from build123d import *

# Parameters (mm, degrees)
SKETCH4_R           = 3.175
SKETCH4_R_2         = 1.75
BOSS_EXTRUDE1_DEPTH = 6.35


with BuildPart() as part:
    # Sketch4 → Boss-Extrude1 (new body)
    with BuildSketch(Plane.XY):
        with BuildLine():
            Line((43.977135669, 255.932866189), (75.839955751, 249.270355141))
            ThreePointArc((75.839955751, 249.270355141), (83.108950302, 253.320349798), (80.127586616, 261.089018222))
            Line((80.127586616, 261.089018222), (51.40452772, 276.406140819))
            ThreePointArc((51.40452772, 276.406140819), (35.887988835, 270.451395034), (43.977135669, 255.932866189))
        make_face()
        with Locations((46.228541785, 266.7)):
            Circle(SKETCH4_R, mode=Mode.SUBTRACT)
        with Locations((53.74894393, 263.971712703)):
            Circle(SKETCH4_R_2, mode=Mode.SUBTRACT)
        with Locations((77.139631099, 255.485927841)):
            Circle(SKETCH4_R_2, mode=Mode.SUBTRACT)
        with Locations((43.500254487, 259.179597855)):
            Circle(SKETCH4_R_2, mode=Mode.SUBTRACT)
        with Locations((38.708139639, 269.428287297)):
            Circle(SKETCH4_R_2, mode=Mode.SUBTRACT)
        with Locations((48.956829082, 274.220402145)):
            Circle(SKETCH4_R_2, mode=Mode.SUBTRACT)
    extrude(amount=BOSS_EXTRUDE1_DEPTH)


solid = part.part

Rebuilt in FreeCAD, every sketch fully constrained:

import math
import FreeCAD as App
import Part
import Sketcher
Q = App.Units.Quantity

doc = App.newDocument("Part")
body = doc.addObject("PartDesign::Body", "Body")

# Sketch on XY plane
sketch1 = body.newObject("Sketcher::SketchObject", "Sketch")
sketch1.AttachmentSupport = (doc.getObject("XY_Plane"), [""])
sketch1.MapMode = "FlatFace"
sketch1.addGeometry([
    Part.LineSegment(App.Vector(43.977136, 255.932866, 0), App.Vector(75.839956, 249.270355, 0)),  # 0
    Part.ArcOfCircle(Part.Circle(App.Vector(77.139631, 255.485928, 0), App.Vector(0, 0, 1), 6.35), math.radians(-101.810374), math.radians(61.930374)),  # 1
    Part.LineSegment(App.Vector(80.127587, 261.089018, 0), App.Vector(51.404528, 276.406141, 0)),  # 2
    Part.ArcOfCircle(Part.Circle(App.Vector(46.228542, 266.7, 0), App.Vector(0, 0, 1), 11), math.radians(61.930374), math.radians(258.189626)),  # 3
    Part.Circle(App.Vector(43.500254, 259.179598, 0), App.Vector(0, 0, 1), 1.75),  # 4
    Part.Circle(App.Vector(53.748944, 263.971713, 0), App.Vector(0, 0, 1), 1.75),  # 5
    Part.Circle(App.Vector(77.139631, 255.485928, 0), App.Vector(0, 0, 1), 1.75),  # 6
    Part.Circle(App.Vector(46.228542, 266.7, 0), App.Vector(0, 0, 1), 3.175),  # 7
    Part.Circle(App.Vector(38.70814, 269.428287, 0), App.Vector(0, 0, 1), 1.75),  # 8
    Part.Circle(App.Vector(48.956829, 274.220402, 0), App.Vector(0, 0, 1), 1.75),  # 9
], False)
sketch1.addConstraint([
    Sketcher.Constraint("Tangent", 0, 2, 1, 1),
    Sketcher.Constraint("Tangent", 1, 2, 2, 1),
    Sketcher.Constraint("Tangent", 2, 2, 3, 1),
    Sketcher.Constraint("Tangent", 3, 2, 0, 1),
    Sketcher.Constraint("Coincident", 6, 3, 1, 3),
    Sketcher.Constraint("Coincident", 7, 3, 3, 3),
    Sketcher.Constraint("Equal", 4, 5),
    Sketcher.Constraint("Equal", 5, 6),
    Sketcher.Constraint("Equal", 6, 8),
    Sketcher.Constraint("Equal", 8, 9),
    Sketcher.Constraint("Radius", 3, Q("11 mm")),
    Sketcher.Constraint("Diameter", 4, Q("3.5 mm")),
    Sketcher.Constraint("Diameter", 7, Q("6.35 mm")),
    Sketcher.Constraint("Radius", 1, Q("6.35 mm")),
    Sketcher.Constraint("DistanceY", -1, 1, 3, 3, Q("266.7 mm")),
    Sketcher.Constraint("DistanceX", 4, 3, 0, 2, Q("32.339701 mm")),
    Sketcher.Constraint("DistanceX", 9, 3, 2, 2, Q("2.447699 mm")),
    Sketcher.Constraint("DistanceX", -1, 1, 1, 3, Q("77.139631 mm")),
    Sketcher.Constraint("DistanceX", -1, 1, 3, 3, Q("46.228542 mm")),
    Sketcher.Constraint("DistanceX", -1, 1, 8, 3, Q("38.70814 mm")),
    Sketcher.Constraint("DistanceX", -1, 1, 9, 3, Q("48.956829 mm")),
    Sketcher.Constraint("DistanceY", 1, 3, 4, 3, Q("3.69367 mm")),
    Sketcher.Constraint("DistanceX", 4, 3, 5, 3, Q("10.248689 mm")),
    Sketcher.Constraint("DistanceY", 4, 3, 8, 3, Q("10.248689 mm")),
    Sketcher.Constraint("DistanceY", 5, 3, 9, 3, Q("10.248689 mm")),
    Sketcher.Constraint("DistanceY", 9, 3, 2, 2, Q("2.185739 mm")),
])
pad1 = body.newObject("PartDesign::Pad", "Pad")
pad1.Profile = sketch1
pad1.Length = 6.35

doc.recompute()
